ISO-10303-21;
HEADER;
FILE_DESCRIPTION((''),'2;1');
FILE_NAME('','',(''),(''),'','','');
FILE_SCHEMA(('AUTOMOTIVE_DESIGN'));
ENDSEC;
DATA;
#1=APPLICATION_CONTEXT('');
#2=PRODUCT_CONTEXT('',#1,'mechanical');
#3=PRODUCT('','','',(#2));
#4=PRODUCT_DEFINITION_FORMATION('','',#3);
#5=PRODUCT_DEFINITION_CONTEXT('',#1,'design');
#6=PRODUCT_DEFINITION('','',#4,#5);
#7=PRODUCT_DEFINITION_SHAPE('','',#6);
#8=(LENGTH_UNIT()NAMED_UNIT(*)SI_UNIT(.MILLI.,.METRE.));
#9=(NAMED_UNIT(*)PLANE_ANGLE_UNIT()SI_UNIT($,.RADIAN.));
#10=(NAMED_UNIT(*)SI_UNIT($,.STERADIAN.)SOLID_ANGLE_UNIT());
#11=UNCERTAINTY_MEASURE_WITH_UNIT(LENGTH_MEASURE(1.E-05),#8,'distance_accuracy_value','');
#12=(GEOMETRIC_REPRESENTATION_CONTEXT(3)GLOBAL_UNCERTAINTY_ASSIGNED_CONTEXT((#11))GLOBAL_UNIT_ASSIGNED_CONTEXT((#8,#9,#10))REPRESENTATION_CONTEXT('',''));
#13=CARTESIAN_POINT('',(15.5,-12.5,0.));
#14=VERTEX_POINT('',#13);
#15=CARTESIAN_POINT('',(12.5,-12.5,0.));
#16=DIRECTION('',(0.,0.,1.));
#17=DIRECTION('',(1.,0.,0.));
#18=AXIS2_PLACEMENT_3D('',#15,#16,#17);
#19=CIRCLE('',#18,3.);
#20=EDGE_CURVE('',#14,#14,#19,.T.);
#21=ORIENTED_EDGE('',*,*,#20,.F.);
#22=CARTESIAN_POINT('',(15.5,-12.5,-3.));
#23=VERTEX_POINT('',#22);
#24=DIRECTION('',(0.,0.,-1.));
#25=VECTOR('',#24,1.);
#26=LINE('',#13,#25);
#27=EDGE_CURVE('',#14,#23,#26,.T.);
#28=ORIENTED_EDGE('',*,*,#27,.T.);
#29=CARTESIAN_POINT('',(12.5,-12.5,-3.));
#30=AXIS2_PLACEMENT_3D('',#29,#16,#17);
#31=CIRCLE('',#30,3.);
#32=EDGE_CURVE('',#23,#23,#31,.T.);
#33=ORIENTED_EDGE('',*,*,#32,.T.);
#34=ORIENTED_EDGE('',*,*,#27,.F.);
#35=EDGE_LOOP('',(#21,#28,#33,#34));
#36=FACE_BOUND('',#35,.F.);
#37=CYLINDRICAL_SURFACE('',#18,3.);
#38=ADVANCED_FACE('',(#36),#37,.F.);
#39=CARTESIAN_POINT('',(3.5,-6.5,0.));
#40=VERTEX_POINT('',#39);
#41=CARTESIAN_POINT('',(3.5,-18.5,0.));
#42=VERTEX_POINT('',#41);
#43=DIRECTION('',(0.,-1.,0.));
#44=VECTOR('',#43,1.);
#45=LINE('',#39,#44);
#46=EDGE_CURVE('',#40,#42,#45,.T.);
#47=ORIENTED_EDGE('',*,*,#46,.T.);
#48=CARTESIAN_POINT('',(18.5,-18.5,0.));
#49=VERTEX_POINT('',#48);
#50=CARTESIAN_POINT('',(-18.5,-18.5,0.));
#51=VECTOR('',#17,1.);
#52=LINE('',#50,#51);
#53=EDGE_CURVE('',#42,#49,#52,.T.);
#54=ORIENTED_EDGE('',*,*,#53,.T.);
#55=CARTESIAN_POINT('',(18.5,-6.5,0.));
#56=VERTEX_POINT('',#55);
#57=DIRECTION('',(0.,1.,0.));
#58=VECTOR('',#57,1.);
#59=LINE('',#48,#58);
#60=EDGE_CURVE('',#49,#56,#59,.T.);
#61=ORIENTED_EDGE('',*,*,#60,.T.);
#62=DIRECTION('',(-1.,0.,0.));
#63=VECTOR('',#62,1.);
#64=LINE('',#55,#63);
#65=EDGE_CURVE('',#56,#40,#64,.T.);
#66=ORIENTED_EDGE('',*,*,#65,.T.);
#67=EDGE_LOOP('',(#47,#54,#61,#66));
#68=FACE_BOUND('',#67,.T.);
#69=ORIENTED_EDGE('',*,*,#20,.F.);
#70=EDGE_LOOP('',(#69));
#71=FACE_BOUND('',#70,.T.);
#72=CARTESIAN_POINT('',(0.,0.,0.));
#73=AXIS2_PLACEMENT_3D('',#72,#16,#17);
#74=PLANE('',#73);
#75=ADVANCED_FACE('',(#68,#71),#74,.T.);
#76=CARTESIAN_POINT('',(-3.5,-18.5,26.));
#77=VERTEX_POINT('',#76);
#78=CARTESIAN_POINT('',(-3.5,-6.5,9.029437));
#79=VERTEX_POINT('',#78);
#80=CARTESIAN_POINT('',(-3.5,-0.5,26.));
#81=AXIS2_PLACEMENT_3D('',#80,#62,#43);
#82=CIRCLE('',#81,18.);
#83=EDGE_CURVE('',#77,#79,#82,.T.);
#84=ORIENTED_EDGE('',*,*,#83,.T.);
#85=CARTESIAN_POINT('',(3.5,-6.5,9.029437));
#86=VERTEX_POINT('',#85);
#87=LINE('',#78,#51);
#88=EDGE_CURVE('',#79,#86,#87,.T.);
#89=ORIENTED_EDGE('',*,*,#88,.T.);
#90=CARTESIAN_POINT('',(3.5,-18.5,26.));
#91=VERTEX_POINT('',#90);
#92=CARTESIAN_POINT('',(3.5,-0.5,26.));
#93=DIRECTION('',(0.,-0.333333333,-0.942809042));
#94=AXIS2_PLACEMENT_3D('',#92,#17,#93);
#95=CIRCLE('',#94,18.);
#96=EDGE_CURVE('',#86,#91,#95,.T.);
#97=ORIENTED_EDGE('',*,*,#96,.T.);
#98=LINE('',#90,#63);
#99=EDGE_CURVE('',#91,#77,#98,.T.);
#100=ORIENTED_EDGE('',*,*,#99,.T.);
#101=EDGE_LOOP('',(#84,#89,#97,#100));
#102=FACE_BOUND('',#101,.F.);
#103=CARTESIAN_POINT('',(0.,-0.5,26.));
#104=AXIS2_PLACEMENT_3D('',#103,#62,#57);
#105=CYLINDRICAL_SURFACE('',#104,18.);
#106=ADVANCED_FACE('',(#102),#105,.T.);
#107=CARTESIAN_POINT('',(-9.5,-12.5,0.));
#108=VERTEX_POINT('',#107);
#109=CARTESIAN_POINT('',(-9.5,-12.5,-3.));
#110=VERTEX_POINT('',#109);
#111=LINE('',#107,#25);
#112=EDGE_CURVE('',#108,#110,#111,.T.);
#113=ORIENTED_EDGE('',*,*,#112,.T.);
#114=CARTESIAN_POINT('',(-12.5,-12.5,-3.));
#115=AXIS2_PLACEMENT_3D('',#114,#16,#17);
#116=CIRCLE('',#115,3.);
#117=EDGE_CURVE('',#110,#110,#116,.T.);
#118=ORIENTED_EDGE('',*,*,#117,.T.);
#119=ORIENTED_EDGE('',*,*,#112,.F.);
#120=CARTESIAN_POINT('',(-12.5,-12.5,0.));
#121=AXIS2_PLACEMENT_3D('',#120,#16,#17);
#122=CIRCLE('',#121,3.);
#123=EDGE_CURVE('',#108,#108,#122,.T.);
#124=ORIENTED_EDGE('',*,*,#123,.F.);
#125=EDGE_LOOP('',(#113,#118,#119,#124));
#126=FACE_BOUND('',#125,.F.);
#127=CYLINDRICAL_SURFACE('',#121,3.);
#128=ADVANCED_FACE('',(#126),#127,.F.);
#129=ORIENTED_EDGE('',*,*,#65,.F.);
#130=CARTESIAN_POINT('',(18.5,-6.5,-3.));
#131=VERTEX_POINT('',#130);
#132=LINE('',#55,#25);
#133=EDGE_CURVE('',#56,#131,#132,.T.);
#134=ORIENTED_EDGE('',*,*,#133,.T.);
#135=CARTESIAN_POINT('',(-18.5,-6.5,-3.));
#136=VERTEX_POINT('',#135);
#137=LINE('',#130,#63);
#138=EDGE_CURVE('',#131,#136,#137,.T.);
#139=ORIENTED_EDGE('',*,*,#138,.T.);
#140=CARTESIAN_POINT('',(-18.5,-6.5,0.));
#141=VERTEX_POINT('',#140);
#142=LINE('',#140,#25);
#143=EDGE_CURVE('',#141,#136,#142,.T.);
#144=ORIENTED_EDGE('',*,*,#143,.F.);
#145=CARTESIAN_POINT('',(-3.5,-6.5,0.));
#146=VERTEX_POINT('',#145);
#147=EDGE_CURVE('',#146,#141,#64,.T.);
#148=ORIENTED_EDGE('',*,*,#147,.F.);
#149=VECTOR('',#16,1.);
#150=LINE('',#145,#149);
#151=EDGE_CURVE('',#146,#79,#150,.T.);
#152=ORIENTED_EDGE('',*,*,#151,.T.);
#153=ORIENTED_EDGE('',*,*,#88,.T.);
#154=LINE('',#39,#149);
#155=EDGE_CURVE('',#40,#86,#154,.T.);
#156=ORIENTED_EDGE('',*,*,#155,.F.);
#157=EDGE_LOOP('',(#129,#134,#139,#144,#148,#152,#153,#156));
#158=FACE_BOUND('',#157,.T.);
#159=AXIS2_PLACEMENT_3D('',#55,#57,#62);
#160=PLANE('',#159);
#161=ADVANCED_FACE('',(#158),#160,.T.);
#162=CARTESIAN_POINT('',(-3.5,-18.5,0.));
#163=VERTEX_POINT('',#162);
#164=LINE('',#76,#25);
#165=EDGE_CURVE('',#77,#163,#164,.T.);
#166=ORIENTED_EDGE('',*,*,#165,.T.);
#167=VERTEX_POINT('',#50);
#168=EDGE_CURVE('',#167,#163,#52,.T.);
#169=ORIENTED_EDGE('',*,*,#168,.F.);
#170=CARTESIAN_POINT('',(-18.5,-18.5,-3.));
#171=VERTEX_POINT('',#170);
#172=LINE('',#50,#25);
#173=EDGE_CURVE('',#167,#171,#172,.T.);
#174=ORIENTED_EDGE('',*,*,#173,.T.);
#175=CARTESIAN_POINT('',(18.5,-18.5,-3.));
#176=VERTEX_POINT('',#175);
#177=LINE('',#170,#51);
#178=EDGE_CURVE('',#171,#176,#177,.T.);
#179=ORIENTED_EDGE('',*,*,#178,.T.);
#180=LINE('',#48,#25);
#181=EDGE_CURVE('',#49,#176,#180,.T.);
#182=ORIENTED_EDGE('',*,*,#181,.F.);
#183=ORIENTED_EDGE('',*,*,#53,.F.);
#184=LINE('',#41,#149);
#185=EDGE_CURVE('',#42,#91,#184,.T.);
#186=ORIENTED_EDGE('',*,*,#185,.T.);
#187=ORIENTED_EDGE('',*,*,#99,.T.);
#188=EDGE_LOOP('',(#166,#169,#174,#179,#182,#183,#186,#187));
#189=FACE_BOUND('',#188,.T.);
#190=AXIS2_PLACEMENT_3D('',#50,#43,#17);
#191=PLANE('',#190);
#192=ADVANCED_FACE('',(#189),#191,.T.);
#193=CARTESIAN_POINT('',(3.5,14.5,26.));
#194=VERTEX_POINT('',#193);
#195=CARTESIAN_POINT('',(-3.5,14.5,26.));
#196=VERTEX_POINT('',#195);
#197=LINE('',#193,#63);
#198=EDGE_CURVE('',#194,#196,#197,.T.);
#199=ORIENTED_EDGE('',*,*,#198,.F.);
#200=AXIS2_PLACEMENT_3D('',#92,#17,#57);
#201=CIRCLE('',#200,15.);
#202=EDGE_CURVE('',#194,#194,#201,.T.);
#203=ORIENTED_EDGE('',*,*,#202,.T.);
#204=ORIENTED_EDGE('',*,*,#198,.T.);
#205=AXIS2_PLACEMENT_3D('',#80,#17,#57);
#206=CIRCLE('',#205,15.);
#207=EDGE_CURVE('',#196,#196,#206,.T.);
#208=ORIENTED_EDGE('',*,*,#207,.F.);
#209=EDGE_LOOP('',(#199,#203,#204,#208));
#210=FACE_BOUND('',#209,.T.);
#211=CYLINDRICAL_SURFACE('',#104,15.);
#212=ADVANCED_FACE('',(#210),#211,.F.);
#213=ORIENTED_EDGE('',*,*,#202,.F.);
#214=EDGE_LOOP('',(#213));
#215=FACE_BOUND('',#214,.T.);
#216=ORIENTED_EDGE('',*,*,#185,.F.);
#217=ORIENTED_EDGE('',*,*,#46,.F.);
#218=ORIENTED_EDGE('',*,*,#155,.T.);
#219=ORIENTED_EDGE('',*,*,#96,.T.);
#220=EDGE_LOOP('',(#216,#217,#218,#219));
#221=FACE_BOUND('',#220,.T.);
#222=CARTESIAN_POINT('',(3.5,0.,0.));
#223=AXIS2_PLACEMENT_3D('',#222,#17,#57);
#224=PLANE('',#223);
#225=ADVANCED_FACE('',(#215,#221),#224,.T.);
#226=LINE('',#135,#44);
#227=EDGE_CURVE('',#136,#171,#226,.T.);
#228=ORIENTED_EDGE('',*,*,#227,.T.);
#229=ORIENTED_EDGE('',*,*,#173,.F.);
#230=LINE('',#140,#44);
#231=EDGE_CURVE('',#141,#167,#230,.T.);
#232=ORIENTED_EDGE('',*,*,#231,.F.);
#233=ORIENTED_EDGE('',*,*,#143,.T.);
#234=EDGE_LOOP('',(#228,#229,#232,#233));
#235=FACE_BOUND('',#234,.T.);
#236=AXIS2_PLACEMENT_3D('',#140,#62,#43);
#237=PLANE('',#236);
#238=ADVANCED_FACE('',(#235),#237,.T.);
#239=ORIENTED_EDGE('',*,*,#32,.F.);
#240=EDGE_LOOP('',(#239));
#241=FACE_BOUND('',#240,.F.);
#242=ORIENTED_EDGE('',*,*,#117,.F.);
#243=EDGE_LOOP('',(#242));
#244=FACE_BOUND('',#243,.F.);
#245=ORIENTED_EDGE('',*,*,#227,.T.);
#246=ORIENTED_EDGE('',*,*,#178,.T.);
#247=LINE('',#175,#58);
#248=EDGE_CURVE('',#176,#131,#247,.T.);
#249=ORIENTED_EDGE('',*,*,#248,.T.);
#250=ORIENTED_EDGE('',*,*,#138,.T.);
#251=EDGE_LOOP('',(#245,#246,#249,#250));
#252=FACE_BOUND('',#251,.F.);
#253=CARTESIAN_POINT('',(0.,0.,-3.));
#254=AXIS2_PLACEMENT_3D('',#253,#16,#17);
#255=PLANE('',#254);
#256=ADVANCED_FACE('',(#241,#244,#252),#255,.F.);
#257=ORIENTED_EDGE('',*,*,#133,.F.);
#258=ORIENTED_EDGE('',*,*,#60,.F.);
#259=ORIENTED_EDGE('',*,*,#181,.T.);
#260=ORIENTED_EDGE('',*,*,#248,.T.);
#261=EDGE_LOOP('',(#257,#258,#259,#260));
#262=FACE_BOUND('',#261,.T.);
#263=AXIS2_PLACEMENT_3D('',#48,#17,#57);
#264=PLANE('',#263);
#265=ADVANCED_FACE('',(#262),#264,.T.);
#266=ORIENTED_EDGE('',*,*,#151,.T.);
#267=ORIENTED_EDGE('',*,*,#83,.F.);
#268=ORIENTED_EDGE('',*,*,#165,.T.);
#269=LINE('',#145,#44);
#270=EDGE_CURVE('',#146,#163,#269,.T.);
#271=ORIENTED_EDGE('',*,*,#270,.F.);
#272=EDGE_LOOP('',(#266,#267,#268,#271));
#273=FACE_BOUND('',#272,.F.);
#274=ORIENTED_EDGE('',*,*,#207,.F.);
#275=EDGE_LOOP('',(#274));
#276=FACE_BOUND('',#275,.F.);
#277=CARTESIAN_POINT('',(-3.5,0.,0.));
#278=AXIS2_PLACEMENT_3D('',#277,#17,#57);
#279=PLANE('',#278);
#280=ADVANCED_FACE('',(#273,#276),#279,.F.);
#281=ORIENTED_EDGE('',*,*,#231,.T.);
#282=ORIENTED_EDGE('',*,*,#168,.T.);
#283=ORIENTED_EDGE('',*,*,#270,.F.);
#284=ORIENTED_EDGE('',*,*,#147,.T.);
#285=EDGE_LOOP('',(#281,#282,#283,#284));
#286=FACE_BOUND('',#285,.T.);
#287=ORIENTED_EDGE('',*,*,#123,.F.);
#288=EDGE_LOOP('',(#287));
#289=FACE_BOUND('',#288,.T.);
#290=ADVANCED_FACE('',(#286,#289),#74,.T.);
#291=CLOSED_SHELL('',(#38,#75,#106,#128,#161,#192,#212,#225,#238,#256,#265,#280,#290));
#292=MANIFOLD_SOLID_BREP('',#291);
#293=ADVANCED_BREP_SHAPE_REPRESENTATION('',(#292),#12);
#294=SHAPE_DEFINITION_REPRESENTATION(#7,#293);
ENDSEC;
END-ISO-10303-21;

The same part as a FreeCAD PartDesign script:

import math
import FreeCAD as App
import Part
import Sketcher

V = App.Vector

doc = App.newDocument("Part")
params = doc.addObject("Spreadsheet::Sheet", "Params")
for row, (alias, value) in enumerate([
    ("sketch1_diameter", "6 mm"),
    ("sketch1_width", "37 mm"),
    ("sketch1_height", "12 mm"),
    ("pad1_length", "3 mm"),
    ("sketch2_diameter", "30 mm"),
    ("sketch2_radius", "18 mm"),
    ("sketch2_width", "12 mm"),
    ("sketch2_height", "26 mm"),
    ("pad2_length", "7 mm"),
], start=1):
    params.set(f"A{row}", alias)
    params.set(f"B{row}", "=" + value)
    params.setAlias(f"B{row}", alias)

body = doc.addObject("PartDesign::Body", "Body")

# Sketch on XY plane
sketch1 = doc.addObject("Sketcher::SketchObject", "Sketch")
body.addObject(sketch1)
sketch1.AttachmentSupport = (doc.XY_Plane, [""])
sketch1.MapMode = "FlatFace"
sketch1.addGeometry([
    Part.LineSegment(V(-18.5, -6.5, 0), V(-18.5, -18.5, 0)),  # 0
    Part.LineSegment(V(-18.5, -18.5, 0), V(18.5, -18.5, 0)),  # 1
    Part.LineSegment(V(18.5, -18.5, 0), V(18.5, -6.5, 0)),  # 2
    Part.LineSegment(V(18.5, -6.5, 0), V(-18.5, -6.5, 0)),  # 3
    Part.Circle(V(-12.5, -12.5, 0), V(0, 0, 1), 3),  # 4
    Part.Circle(V(12.5, -12.5, 0), V(0, 0, 1), 3),  # 5
], False)
sketch1.addConstraint([
    Sketcher.Constraint("Coincident", 0, 2, 1, 1),
    Sketcher.Constraint("Coincident", 1, 2, 2, 1),
    Sketcher.Constraint("Coincident", 2, 2, 3, 1),
    Sketcher.Constraint("Coincident", 3, 2, 0, 1),
    Sketcher.Constraint("Vertical", 0),
    Sketcher.Constraint("Horizontal", 1),
    Sketcher.Constraint("Vertical", 2),
    Sketcher.Constraint("Horizontal", 3),
    Sketcher.Constraint("Equal", 4, 5),
    Sketcher.Constraint("Symmetric", 4, 3, 5, 3, -2),
    Sketcher.Constraint("Diameter", 4, 6.0),
    Sketcher.Constraint("DistanceX", 1, 1, 1, 2, 37.0),
    Sketcher.Constraint("DistanceY", 0, 2, 0, 1, 12.0),
    Sketcher.Constraint("DistanceX", 4, 3, 5, 3, 25.0),
    Sketcher.Constraint("DistanceX", 0, 2, 4, 3, 6.0),
    Sketcher.Constraint("DistanceY", 0, 2, 4, 3, 6.0),
    Sketcher.Constraint("DistanceY", 4, 3, -1, 1, 12.5),
])
sketch1.setExpression("Constraints[10]", "Params.sketch1_diameter")
sketch1.setExpression("Constraints[11]", "Params.sketch1_width")
sketch1.setExpression("Constraints[12]", "Params.sketch1_height")
pad1 = doc.addObject("PartDesign::Pad", "Pad")
body.addObject(pad1)
pad1.Profile = sketch1
pad1.setExpression("Length", "Params.pad1_length")
pad1.Reversed = True

# Sketch on YZ plane
sketch2 = doc.addObject("Sketcher::SketchObject", "Sketch001")
body.addObject(sketch2)
sketch2.AttachmentSupport = (doc.YZ_Plane, [""])
sketch2.MapMode = "FlatFace"
sketch2.addGeometry([
    Part.LineSegment(V(-18.5, 0, 0), V(-6.5, 0, 0)),  # 0
    Part.LineSegment(V(-6.5, 0, 0), V(-6.5, 9.029437, 0)),  # 1
    Part.ArcOfCircle(Part.Circle(V(-0.5, 26, 0), V(0, 0, 1), 18), math.radians(-109.471221), math.radians(180)),  # 2
    Part.LineSegment(V(-18.5, 26, 0), V(-18.5, 0, 0)),  # 3
    Part.Circle(V(-0.5, 26, 0), V(0, 0, 1), 15),  # 4
], False)
sketch2.addConstraint([
    Sketcher.Constraint("Coincident", 0, 2, 1, 1),
    Sketcher.Constraint("Coincident", 1, 2, 2, 1),
    Sketcher.Constraint("Tangent", 2, 2, 3, 1),
    Sketcher.Constraint("Coincident", 3, 2, 0, 1),
    Sketcher.Constraint("Horizontal", 0),
    Sketcher.Constraint("Vertical", 1),
    Sketcher.Constraint("Vertical", 3),
    Sketcher.Constraint("Coincident", 4, 3, 2, 3),
    Sketcher.Constraint("PointOnObject", 0, 2, -1),
    Sketcher.Constraint("Diameter", 4, 30.0),
    Sketcher.Constraint("Radius", 2, 18.0),
    Sketcher.Constraint("DistanceX", 0, 1, 0, 2, 12.0),
    Sketcher.Constraint("DistanceY", 3, 2, 3, 1, 26.0),
    Sketcher.Constraint("DistanceX", 2, 3, -1, 1, 0.5),
])
sketch2.setExpression("Constraints[9]", "Params.sketch2_diameter")
sketch2.setExpression("Constraints[10]", "Params.sketch2_radius")
sketch2.setExpression("Constraints[11]", "Params.sketch2_width")
sketch2.setExpression("Constraints[12]", "Params.sketch2_height")
pad2 = doc.addObject("PartDesign::Pad", "Pad001")
body.addObject(pad2)
pad2.Profile = sketch2
pad2.setExpression("Length", "Params.pad2_length")
pad2.Midplane = True

doc.recompute()
